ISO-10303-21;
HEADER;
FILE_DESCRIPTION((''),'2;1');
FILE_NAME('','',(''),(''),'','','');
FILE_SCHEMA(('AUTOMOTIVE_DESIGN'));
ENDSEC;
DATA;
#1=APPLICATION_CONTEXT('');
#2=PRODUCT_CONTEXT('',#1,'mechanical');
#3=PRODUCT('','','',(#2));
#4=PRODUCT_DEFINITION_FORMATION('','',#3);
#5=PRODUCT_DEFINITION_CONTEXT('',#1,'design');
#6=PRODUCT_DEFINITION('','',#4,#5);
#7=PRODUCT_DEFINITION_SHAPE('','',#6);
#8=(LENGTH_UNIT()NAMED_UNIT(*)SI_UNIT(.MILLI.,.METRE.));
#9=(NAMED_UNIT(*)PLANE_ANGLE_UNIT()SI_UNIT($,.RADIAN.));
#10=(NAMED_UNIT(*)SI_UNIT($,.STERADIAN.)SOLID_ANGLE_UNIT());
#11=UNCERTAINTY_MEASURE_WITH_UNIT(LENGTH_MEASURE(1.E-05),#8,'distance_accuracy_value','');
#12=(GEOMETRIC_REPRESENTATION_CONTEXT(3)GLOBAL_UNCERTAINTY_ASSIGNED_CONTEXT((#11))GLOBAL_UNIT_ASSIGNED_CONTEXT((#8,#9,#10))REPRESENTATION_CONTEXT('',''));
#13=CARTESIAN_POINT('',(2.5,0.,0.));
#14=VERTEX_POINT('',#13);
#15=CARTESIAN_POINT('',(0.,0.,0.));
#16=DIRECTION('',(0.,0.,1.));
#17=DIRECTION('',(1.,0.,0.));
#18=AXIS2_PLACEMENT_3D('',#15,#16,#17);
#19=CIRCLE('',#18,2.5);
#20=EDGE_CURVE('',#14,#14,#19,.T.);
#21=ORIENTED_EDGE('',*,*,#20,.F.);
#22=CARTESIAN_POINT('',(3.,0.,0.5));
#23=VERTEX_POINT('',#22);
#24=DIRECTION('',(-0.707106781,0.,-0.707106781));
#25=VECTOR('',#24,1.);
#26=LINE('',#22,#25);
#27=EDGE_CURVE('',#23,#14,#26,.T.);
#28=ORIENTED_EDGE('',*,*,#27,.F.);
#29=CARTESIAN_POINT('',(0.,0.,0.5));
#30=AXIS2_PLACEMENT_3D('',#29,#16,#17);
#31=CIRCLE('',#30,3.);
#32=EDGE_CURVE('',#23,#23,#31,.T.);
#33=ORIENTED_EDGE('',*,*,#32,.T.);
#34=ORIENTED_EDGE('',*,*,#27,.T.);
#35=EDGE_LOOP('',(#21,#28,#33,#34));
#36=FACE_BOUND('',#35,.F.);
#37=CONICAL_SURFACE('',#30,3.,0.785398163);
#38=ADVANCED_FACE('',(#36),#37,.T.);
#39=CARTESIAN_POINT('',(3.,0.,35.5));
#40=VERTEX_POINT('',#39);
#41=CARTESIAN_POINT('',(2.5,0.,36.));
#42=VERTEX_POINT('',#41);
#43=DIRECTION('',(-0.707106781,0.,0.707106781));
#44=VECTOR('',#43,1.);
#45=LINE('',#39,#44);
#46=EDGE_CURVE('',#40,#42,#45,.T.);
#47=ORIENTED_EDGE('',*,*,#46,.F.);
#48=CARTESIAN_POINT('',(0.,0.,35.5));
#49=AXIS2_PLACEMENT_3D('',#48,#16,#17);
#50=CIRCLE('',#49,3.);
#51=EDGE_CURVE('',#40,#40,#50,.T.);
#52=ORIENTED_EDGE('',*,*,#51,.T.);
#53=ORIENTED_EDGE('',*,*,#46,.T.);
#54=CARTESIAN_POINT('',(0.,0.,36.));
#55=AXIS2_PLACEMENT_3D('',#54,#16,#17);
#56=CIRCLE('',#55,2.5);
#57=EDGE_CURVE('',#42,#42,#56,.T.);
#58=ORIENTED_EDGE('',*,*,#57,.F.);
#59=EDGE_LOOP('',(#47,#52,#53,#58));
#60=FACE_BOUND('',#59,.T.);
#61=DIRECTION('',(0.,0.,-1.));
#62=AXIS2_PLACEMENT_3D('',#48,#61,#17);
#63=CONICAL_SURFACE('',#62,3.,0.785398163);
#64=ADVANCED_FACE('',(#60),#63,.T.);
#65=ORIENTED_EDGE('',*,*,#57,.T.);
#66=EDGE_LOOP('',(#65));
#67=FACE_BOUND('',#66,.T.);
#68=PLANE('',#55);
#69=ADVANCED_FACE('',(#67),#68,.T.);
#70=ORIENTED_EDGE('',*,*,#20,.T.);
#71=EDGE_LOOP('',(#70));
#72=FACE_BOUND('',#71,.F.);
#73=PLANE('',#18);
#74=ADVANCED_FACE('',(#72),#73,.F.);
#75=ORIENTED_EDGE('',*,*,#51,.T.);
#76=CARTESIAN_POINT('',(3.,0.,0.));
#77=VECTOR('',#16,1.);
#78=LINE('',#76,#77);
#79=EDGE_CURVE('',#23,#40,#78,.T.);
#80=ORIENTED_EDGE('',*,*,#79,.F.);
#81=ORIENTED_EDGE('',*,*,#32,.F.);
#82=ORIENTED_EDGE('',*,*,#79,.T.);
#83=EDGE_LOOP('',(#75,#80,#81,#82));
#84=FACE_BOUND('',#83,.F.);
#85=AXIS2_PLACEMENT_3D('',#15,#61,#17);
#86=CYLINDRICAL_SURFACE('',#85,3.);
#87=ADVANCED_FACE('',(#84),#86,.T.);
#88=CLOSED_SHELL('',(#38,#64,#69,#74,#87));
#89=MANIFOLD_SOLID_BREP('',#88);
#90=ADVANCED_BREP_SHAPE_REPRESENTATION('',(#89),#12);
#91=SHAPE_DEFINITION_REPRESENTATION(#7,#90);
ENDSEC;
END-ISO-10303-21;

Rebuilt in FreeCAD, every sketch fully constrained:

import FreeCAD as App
import Part
import Sketcher


def edges_at(feature, points):
    """Names of the edges that pass closest to the given points."""
    edges = feature.Shape.Edges
    near = lambda p: min(range(len(edges)), key=lambda i: edges[i].distToShape(Part.Vertex(*p))[0])
    return sorted({f"Edge{near(p) + 1}" for p in points})

doc = App.newDocument("Part")
body = doc.addObject("PartDesign::Body", "Body")

sketch1 = doc.addObject("Sketcher::SketchObject", "Sketch")
body.addObject(sketch1)
sketch1.AttachmentSupport = (doc.XY_Plane, [""])
sketch1.MapMode = "FlatFace"
sketch1.addGeometry(Part.Circle(App.Vector(0, 0, 0), App.Vector(0, 0, 1), 3), False)
sketch1.addConstraint(Sketcher.Constraint("Coincident", 0, 3, -1, 1))
sketch1.addConstraint(Sketcher.Constraint("Diameter", 0, 6.0))
pad1 = doc.addObject("PartDesign::Pad", "Pad")
body.addObject(pad1)
pad1.Profile = sketch1
pad1.Length = 36
doc.recompute()

chamfer = doc.addObject("PartDesign::Chamfer", "Chamfer")
body.addObject(chamfer)
chamfer.Base = (pad1, edges_at(pad1, [(-3, 0, 36), (-3, 0, 0)]))
chamfer.Size = 0.5

doc.recompute()
